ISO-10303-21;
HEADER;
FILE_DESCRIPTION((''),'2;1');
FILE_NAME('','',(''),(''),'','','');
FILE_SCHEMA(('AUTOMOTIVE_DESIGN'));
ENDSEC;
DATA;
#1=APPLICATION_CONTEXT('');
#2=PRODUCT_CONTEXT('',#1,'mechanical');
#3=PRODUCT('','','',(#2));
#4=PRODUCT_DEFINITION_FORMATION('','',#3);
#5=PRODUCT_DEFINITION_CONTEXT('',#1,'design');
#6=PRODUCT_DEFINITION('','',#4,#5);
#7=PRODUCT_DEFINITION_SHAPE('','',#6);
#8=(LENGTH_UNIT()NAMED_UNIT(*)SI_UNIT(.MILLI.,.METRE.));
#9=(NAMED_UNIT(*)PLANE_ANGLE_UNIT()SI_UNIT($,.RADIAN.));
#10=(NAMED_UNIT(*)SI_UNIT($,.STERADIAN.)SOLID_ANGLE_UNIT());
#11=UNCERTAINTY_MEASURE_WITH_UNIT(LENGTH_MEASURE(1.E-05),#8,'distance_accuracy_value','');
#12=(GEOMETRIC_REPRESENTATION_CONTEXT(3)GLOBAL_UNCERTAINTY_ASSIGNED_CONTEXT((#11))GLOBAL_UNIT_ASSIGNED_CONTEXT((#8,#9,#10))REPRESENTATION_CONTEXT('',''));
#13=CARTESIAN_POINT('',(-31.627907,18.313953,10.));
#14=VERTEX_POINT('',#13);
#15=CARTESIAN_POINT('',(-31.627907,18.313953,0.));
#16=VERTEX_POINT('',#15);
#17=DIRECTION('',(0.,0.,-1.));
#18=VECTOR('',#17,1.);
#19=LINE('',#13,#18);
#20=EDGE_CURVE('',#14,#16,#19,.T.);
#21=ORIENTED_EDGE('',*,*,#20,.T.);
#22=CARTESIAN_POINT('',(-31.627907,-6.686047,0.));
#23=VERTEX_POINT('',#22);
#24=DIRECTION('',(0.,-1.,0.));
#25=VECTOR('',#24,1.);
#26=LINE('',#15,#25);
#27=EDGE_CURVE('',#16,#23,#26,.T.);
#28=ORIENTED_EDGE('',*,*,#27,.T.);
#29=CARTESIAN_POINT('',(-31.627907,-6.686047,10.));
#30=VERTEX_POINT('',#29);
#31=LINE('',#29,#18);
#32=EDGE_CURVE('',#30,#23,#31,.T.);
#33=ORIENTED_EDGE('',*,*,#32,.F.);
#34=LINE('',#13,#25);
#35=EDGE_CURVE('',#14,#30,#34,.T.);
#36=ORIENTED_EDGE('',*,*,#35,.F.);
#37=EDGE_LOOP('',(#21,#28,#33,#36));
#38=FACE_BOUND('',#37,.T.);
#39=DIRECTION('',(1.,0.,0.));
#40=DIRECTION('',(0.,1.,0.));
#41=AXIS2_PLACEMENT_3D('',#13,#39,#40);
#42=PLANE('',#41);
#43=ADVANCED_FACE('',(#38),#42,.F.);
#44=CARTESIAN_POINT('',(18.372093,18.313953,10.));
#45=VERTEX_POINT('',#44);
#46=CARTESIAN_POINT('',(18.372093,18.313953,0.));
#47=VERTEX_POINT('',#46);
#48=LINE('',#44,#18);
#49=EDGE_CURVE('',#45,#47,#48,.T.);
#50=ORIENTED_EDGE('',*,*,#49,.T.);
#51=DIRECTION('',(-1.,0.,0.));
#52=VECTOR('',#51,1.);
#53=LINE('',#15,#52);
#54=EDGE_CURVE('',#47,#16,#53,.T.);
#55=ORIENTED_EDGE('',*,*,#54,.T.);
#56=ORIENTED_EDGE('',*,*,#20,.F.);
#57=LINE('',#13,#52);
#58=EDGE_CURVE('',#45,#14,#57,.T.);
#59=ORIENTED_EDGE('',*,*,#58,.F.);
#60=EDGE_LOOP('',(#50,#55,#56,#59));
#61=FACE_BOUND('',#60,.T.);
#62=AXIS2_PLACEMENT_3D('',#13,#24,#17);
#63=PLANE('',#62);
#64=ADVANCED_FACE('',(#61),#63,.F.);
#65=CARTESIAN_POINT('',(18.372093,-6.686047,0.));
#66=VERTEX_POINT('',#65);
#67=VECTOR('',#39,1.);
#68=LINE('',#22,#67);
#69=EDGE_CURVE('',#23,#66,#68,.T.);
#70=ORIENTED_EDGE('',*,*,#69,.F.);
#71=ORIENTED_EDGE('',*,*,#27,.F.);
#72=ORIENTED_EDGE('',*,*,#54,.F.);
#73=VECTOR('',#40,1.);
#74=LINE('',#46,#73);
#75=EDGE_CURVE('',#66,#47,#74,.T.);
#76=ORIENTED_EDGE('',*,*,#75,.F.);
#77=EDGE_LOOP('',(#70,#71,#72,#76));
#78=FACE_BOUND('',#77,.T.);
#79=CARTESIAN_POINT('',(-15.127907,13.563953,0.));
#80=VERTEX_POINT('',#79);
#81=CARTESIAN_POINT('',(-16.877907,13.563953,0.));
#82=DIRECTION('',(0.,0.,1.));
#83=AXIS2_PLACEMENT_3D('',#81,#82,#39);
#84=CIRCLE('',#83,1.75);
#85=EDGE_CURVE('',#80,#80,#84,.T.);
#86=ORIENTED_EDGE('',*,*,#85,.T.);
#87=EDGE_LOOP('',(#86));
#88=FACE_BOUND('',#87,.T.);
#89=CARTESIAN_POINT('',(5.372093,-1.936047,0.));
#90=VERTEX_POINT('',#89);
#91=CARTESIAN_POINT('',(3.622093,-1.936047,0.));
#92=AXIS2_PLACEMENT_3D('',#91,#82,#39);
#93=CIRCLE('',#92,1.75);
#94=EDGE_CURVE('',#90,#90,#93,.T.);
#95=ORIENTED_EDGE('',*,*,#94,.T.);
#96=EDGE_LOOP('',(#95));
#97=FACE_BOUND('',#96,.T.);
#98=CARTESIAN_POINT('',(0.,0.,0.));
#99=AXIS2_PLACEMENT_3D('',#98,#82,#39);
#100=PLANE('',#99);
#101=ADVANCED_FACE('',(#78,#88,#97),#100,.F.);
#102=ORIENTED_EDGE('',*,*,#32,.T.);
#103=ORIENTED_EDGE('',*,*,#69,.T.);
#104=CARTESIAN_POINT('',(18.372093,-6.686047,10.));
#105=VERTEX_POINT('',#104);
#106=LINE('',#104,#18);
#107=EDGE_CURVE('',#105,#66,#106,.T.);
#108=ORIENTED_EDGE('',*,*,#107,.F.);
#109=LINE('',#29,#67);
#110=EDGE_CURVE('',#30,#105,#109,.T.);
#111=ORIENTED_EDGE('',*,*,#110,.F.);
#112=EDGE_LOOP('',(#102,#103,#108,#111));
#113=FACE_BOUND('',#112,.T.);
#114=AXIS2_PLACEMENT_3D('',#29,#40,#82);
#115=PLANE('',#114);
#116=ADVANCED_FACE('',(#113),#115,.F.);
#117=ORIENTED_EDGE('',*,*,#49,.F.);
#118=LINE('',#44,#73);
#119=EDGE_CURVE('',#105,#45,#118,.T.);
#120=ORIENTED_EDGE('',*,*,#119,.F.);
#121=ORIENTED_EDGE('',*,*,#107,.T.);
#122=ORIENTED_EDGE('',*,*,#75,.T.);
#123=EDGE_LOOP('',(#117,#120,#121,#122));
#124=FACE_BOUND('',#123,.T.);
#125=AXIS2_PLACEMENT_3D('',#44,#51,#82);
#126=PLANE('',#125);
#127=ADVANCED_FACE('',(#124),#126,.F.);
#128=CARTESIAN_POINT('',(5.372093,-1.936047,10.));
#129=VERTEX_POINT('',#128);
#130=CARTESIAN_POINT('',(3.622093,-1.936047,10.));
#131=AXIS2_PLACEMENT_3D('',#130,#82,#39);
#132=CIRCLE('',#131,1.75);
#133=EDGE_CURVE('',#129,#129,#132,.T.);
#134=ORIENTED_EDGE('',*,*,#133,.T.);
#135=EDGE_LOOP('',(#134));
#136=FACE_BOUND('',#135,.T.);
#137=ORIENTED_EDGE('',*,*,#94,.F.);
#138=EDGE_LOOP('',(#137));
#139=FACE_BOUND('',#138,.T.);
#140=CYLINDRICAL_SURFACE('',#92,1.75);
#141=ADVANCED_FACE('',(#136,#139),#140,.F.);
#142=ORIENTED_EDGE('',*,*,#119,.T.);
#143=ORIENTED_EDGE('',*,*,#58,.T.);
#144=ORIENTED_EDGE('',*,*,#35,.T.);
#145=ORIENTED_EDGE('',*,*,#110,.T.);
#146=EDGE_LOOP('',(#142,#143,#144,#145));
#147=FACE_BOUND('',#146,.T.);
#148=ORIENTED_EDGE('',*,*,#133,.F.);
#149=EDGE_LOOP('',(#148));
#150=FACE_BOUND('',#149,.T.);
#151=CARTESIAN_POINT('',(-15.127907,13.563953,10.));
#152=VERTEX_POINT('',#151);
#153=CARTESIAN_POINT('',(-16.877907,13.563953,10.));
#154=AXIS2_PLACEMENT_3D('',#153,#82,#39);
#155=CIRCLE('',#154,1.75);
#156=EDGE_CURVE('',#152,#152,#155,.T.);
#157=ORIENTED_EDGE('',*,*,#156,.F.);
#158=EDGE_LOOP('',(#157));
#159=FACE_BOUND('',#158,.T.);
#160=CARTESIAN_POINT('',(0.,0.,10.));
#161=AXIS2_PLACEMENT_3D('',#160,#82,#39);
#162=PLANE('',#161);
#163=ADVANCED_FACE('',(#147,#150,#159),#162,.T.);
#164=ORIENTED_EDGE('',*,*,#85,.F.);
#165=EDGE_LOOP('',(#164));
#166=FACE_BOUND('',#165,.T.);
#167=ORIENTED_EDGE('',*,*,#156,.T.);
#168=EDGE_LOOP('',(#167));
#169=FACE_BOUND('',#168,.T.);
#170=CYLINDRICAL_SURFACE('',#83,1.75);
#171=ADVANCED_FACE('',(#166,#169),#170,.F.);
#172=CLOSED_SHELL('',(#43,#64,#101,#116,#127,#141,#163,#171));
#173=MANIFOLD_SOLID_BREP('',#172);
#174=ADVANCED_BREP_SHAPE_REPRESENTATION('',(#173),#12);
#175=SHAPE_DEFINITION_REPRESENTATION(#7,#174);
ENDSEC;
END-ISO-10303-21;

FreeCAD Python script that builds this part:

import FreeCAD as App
import Part
import Sketcher
from FreeCAD import Vector
Q = App.Units.Quantity

doc = App.newDocument("Part")
body = doc.addObject("PartDesign::Body", "Body")

sketch1 = body.newObject("Sketcher::SketchObject", "Sketch")
sketch1.AttachmentSupport = (doc.getObject("XY_Plane"), [""])
sketch1.MapMode = "FlatFace"
sketch1.addGeometry(Part.LineSegment(Vector(-32, 18, 0), Vector(-32, -7, 0)), False)
sketch1.addGeometry(Part.LineSegment(Vector(-32, -7, 0), Vector(18, -7, 0)), False)
sketch1.addGeometry(Part.LineSegment(Vector(18, -7, 0), Vector(18, 18, 0)), False)
sketch1.addGeometry(Part.LineSegment(Vector(18, 18, 0), Vector(-32, 18, 0)), False)
sketch1.addConstraint(Sketcher.Constraint("Coincident", 0, 2, 1, 1))
sketch1.addConstraint(Sketcher.Constraint("Coincident", 1, 2, 2, 1))
sketch1.addConstraint(Sketcher.Constraint("Coincident", 2, 2, 3, 1))
sketch1.addConstraint(Sketcher.Constraint("Coincident", 3, 2, 0, 1))
sketch1.addConstraint(Sketcher.Constraint("Vertical", 0))
sketch1.addConstraint(Sketcher.Constraint("Horizontal", 1))
sketch1.addConstraint(Sketcher.Constraint("Vertical", 2))
sketch1.addConstraint(Sketcher.Constraint("Horizontal", 3))
sketch1.addConstraint(Sketcher.Constraint("DistanceX", 1, 1, 1, 2, Q("50 mm")))
sketch1.addConstraint(Sketcher.Constraint("DistanceY", 0, 2, 0, 1, Q("25 mm")))
sketch1.addConstraint(Sketcher.Constraint("DistanceX", 0, 2, -1, 1, Q("31.627907 mm")))
sketch1.addConstraint(Sketcher.Constraint("DistanceY", 0, 2, -1, 1, Q("6.686047 mm")))
pad1 = body.newObject("PartDesign::Pad", "Pad")
pad1.Profile = sketch1
pad1.Length = 10

sketch2 = body.newObject("Sketcher::SketchObject", "Sketch001")
sketch2.AttachmentSupport = (doc.getObject("XY_Plane"), [""])
sketch2.MapMode = "FlatFace"
sketch2.AttachmentOffset = App.Placement(Vector(0, 0, 10), App.Rotation())
sketch2.addGeometry(Part.Circle(Vector(-16.9, 13.6, 0), Vector(0, 0, 1), 1.8), False)
sketch2.addConstraint(Sketcher.Constraint("Diameter", 0, Q("3.5 mm")))
sketch2.addConstraint(Sketcher.Constraint("DistanceX", 0, 3, -1, 1, Q("16.877907 mm")))
sketch2.addConstraint(Sketcher.Constraint("DistanceY", -1, 1, 0, 3, Q("13.563953 mm")))
pocket1 = body.newObject("PartDesign::Pocket", "Pocket")
pocket1.Profile = sketch2
pocket1.Length = 10

sketch3 = body.newObject("Sketcher::SketchObject", "Sketch002")
sketch3.AttachmentSupport = (doc.getObject("XY_Plane"), [""])
sketch3.MapMode = "FlatFace"
sketch3.AttachmentOffset = App.Placement(Vector(0, 0, 10), App.Rotation())
sketch3.addGeometry(Part.Circle(Vector(3.6, -1.9, 0), Vector(0, 0, 1), 1.8), False)
sketch3.addConstraint(Sketcher.Constraint("Diameter", 0, Q("3.5 mm")))
sketch3.addConstraint(Sketcher.Constraint("DistanceX", -1, 1, 0, 3, Q("3.622093 mm")))
sketch3.addConstraint(Sketcher.Constraint("DistanceY", 0, 3, -1, 1, Q("1.936047 mm")))
pocket2 = body.newObject("PartDesign::Pocket", "Pocket001")
pocket2.Profile = sketch3
pocket2.Length = 10

doc.recompute()
